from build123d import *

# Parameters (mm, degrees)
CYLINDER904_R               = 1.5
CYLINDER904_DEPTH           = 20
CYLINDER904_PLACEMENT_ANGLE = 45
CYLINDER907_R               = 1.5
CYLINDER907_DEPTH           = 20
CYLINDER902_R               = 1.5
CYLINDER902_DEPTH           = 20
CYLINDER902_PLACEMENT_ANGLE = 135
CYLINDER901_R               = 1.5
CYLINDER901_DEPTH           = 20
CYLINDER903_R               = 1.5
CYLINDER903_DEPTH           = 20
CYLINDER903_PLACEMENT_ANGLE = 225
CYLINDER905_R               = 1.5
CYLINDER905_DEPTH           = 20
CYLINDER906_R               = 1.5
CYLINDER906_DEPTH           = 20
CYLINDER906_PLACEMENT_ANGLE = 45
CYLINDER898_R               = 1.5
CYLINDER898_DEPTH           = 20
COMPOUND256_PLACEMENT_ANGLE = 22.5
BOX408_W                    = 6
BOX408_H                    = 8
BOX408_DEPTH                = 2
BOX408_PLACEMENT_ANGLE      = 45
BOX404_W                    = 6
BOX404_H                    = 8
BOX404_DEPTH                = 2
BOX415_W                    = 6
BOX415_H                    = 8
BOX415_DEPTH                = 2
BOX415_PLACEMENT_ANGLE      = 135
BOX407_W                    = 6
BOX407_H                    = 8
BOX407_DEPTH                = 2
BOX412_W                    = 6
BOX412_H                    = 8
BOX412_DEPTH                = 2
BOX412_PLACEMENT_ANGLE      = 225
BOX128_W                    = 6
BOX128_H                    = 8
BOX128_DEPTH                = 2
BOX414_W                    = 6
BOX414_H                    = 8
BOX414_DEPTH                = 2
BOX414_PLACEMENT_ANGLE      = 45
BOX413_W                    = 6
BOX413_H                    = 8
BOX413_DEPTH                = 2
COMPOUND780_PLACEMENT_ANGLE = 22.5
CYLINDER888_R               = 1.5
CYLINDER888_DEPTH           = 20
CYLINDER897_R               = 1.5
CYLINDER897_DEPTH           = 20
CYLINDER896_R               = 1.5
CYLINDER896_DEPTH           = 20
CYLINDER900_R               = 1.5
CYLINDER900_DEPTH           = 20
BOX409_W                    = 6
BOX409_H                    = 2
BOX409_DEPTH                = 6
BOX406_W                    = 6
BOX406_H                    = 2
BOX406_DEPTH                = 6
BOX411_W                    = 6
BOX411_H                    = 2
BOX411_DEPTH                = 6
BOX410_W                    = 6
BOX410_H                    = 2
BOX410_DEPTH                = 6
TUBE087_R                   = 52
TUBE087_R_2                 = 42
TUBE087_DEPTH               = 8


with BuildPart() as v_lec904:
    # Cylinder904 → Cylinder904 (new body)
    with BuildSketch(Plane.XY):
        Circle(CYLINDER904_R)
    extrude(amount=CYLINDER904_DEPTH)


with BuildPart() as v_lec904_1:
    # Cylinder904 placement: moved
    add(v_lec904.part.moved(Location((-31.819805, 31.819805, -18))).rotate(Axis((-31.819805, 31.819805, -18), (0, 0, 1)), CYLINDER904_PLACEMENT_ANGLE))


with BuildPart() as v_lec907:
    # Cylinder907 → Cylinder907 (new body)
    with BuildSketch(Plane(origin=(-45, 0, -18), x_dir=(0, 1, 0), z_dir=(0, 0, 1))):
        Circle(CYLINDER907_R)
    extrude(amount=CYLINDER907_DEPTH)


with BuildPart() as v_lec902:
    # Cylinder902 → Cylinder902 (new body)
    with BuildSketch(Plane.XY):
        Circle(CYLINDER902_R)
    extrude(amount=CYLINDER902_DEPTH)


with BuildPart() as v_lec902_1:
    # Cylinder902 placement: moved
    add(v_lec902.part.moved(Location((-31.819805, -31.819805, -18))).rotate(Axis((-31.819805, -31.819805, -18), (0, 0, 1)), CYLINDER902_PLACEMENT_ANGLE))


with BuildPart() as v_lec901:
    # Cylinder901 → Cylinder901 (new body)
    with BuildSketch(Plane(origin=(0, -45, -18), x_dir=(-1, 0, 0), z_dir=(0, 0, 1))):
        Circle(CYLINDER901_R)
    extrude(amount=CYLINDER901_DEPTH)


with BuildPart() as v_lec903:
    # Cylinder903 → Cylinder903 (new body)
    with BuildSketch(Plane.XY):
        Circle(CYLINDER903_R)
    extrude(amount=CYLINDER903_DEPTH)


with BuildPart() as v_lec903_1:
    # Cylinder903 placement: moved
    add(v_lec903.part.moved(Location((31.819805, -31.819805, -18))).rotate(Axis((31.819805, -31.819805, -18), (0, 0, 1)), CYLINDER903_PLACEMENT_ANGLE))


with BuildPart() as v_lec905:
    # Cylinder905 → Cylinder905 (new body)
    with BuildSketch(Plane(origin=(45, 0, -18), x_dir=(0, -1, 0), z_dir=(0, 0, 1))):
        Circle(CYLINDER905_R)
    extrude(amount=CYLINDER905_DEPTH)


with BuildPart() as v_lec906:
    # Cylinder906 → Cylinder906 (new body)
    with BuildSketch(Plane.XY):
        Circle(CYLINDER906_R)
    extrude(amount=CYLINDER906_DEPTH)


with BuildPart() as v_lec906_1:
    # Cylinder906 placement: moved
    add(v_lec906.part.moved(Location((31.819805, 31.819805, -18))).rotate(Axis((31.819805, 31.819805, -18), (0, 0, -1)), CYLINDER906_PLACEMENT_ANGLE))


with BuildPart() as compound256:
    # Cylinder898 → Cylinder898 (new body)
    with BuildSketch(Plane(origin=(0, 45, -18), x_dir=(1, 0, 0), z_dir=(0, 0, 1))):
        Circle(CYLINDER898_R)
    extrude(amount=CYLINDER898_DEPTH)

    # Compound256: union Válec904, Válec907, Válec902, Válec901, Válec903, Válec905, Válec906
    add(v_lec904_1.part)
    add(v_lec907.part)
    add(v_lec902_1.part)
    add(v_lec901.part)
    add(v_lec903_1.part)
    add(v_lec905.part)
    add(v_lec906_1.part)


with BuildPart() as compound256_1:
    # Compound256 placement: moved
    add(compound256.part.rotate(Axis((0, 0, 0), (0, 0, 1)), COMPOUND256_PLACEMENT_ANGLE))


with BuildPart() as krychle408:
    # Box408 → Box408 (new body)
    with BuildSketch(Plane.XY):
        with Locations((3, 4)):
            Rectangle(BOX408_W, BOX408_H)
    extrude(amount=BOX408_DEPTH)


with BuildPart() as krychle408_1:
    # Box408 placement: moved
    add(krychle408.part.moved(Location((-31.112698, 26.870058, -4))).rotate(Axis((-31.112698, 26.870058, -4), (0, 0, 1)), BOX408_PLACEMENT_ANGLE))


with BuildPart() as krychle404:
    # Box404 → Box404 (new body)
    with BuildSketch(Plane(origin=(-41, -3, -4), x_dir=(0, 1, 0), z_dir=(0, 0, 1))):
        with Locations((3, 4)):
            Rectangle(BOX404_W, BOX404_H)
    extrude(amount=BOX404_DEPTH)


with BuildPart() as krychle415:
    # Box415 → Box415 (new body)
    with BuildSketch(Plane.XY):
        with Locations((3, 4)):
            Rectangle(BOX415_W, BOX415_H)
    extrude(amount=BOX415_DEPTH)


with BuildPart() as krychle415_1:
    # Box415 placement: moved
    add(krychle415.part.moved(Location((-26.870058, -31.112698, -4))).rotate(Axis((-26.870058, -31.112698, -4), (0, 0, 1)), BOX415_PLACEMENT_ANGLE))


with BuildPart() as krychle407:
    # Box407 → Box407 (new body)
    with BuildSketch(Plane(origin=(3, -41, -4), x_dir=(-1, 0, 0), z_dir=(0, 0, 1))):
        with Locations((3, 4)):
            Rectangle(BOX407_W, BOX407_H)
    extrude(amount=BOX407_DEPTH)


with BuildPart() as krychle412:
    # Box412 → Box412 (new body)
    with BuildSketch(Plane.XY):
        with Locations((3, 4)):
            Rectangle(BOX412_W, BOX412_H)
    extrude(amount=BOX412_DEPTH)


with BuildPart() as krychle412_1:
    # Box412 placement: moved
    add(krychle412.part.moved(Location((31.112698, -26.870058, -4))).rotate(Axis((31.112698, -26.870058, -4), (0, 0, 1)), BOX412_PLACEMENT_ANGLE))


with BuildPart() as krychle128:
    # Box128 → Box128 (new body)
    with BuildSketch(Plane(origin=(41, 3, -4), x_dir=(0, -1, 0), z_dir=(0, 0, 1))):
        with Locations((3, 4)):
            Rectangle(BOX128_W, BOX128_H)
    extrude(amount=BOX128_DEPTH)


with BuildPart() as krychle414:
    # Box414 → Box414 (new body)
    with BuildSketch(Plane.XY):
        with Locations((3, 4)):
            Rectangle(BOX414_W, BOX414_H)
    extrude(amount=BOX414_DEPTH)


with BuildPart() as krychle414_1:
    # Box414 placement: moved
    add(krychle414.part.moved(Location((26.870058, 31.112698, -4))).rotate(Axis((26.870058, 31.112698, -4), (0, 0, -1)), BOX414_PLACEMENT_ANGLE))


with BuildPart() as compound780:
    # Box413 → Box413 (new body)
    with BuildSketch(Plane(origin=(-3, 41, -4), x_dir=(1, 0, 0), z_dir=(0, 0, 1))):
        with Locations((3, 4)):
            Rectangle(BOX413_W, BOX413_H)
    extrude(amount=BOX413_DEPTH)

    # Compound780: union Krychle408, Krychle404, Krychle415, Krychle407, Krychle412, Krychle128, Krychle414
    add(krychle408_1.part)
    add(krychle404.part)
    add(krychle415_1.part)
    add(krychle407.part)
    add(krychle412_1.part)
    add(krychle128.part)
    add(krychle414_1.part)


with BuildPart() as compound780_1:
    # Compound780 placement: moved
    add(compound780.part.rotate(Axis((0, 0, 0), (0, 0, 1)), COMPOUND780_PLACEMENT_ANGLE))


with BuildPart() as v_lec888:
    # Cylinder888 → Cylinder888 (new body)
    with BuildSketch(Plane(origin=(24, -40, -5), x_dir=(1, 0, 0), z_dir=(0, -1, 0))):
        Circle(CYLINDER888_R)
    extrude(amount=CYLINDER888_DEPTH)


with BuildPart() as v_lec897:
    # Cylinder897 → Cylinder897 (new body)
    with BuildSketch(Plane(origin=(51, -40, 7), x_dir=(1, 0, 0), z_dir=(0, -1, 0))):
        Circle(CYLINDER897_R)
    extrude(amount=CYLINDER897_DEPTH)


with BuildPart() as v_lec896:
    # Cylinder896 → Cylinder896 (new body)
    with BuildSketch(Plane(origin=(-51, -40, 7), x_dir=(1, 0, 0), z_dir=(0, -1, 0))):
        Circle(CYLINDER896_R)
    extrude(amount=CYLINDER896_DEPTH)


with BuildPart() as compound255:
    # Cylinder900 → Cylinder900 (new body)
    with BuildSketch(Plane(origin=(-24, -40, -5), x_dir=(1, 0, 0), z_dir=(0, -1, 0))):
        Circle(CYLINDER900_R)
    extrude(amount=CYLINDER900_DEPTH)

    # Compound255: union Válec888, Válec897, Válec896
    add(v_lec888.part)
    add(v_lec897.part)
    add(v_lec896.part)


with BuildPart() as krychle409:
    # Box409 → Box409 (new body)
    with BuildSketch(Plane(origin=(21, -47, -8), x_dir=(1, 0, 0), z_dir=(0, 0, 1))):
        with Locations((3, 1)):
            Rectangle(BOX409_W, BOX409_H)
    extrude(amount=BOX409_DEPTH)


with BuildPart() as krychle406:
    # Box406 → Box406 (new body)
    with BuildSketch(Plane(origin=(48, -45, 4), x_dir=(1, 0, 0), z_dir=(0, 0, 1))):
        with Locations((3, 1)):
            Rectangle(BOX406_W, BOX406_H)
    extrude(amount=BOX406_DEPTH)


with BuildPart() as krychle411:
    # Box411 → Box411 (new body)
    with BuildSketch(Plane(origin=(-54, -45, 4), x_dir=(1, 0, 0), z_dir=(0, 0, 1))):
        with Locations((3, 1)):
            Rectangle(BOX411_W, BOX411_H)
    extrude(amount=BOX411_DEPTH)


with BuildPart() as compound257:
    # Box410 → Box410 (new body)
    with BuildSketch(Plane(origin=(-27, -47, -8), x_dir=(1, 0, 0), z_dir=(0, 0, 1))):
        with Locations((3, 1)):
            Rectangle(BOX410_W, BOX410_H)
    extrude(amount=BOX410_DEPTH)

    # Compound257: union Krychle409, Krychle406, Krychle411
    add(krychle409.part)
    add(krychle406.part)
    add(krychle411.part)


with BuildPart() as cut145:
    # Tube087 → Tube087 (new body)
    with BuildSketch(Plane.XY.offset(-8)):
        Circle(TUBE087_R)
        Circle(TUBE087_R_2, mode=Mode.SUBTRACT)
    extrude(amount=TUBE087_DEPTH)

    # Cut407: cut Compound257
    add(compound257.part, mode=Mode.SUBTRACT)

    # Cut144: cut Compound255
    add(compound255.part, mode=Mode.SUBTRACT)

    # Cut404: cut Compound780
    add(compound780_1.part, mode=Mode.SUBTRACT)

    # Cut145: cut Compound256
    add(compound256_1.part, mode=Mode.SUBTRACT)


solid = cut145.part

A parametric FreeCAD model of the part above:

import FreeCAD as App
import Part
import Sketcher
from FreeCAD import Vector
Q = App.Units.Quantity


def add_polygon(sketch, points):
    """Adds a closed chain of lines whose ends are joined by coincident constraints."""
    first, n = sketch.GeometryCount, len(points)
    for a, b in zip(points, points[1:] + points[:1]):
        sketch.addGeometry(Part.LineSegment(App.Vector(*a, 0), App.Vector(*b, 0)), False)
    for i in range(n):
        sketch.addConstraint(Sketcher.Constraint("Coincident", first + i, 2, first + (i + 1) % n, 1))

doc = App.newDocument("Part")
body = doc.addObject("PartDesign::Body", "Body")

# Sketch on XY plane
sketch1 = body.newObject("Sketcher::SketchObject", "Sketch")
sketch1.AttachmentSupport = (doc.getObject("XY_Plane"), [""])
sketch1.MapMode = "FlatFace"
sketch1.addGeometry(Part.Circle(Vector(0, 0, 0), Vector(0, 0, 1), 1.5), False)
sketch1.addConstraint(Sketcher.Constraint("Coincident", 0, 3, -1, 1))
sketch1.addConstraint(Sketcher.Constraint("Diameter", 0, Q("3 mm")))
pad1 = body.newObject("PartDesign::Pad", "Pad")
pad1.Profile = sketch1
pad1.Length = 20
body2 = doc.addObject("PartDesign::Body", "Body001")
doc.recompute()

body.Placement = App.Placement(Vector(-31.819805, 31.819805, -18), App.Rotation(Vector(0, 0, 1), 45))
boolean = body2.newObject("PartDesign::Boolean", "Boolean")
boolean.Type = "Fuse"
boolean.addObjects([body])
body3 = doc.addObject("PartDesign::Body", "Body002")

# Sketch on XY plane
sketch2 = body3.newObject("Sketcher::SketchObject", "Sketch001")
sketch2.AttachmentSupport = (doc.getObject("XY_Plane002"), [""])
sketch2.MapMode = "FlatFace"
sketch2.AttachmentOffset = App.Placement(Vector(0, 0, -18), App.Rotation())
sketch2.addGeometry(Part.Circle(Vector(-45, 0, 0), Vector(0, 0, 1), 1.5), False)
sketch2.addConstraint(Sketcher.Constraint("PointOnObject", 0, 3, -1))
sketch2.addConstraint(Sketcher.Constraint("Diameter", 0, Q("3 mm")))
sketch2.addConstraint(Sketcher.Constraint("DistanceX", 0, 3, -1, 1, Q("45 mm")))
pad2 = body3.newObject("PartDesign::Pad", "Pad001")
pad2.Profile = sketch2
pad2.Length = 20
body4 = doc.addObject("PartDesign::Body", "Body003")

# Sketch on XY plane
sketch3 = body4.newObject("Sketcher::SketchObject", "Sketch002")
sketch3.AttachmentSupport = (doc.getObject("XY_Plane003"), [""])
sketch3.MapMode = "FlatFace"
sketch3.addGeometry(Part.Circle(Vector(0, 0, 0), Vector(0, 0, 1), 1.5), False)
sketch3.addConstraint(Sketcher.Constraint("Coincident", 0, 3, -1, 1))
sketch3.addConstraint(Sketcher.Constraint("Diameter", 0, Q("3 mm")))
pad3 = body4.newObject("PartDesign::Pad", "Pad002")
pad3.Profile = sketch3
pad3.Length = 20
body5 = doc.addObject("PartDesign::Body", "Body004")
doc.recompute()

body4.Placement = App.Placement(Vector(-31.819805, -31.819805, -18), App.Rotation(Vector(0, 0, 1), 135))
boolean2 = body5.newObject("PartDesign::Boolean", "Boolean001")
boolean2.Type = "Fuse"
boolean2.addObjects([body4])
body6 = doc.addObject("PartDesign::Body", "Body005")

# Sketch on XY plane
sketch4 = body6.newObject("Sketcher::SketchObject", "Sketch003")
sketch4.AttachmentSupport = (doc.getObject("XY_Plane005"), [""])
sketch4.MapMode = "FlatFace"
sketch4.AttachmentOffset = App.Placement(Vector(0, 0, -18), App.Rotation())
sketch4.addGeometry(Part.Circle(Vector(0, -45, 0), Vector(0, 0, 1), 1.5), False)
sketch4.addConstraint(Sketcher.Constraint("PointOnObject", 0, 3, -2))
sketch4.addConstraint(Sketcher.Constraint("Diameter", 0, Q("3 mm")))
sketch4.addConstraint(Sketcher.Constraint("DistanceY", 0, 3, -1, 1, Q("45 mm")))
pad4 = body6.newObject("PartDesign::Pad", "Pad003")
pad4.Profile = sketch4
pad4.Length = 20
body7 = doc.addObject("PartDesign::Body", "Body006")

# Sketch on XY plane
sketch5 = body7.newObject("Sketcher::SketchObject", "Sketch004")
sketch5.AttachmentSupport = (doc.getObject("XY_Plane006"), [""])
sketch5.MapMode = "FlatFace"
sketch5.addGeometry(Part.Circle(Vector(0, 0, 0), Vector(0, 0, 1), 1.5), False)
sketch5.addConstraint(Sketcher.Constraint("Coincident", 0, 3, -1, 1))
sketch5.addConstraint(Sketcher.Constraint("Diameter", 0, Q("3 mm")))
pad5 = body7.newObject("PartDesign::Pad", "Pad004")
pad5.Profile = sketch5
pad5.Length = 20
body8 = doc.addObject("PartDesign::Body", "Body007")
doc.recompute()

body7.Placement = App.Placement(Vector(31.819805, -31.819805, -18), App.Rotation(Vector(0, 0, 1), 225))
boolean3 = body8.newObject("PartDesign::Boolean", "Boolean002")
boolean3.Type = "Fuse"
boolean3.addObjects([body7])
body9 = doc.addObject("PartDesign::Body", "Body008")

# Sketch on XY plane
sketch6 = body9.newObject("Sketcher::SketchObject", "Sketch005")
sketch6.AttachmentSupport = (doc.getObject("XY_Plane008"), [""])
sketch6.MapMode = "FlatFace"
sketch6.AttachmentOffset = App.Placement(Vector(0, 0, -18), App.Rotation())
sketch6.addGeometry(Part.Circle(Vector(45, 0, 0), Vector(0, 0, 1), 1.5), False)
sketch6.addConstraint(Sketcher.Constraint("PointOnObject", 0, 3, -1))
sketch6.addConstraint(Sketcher.Constraint("Diameter", 0, Q("3 mm")))
sketch6.addConstraint(Sketcher.Constraint("DistanceX", -1, 1, 0, 3, Q("45 mm")))
pad6 = body9.newObject("PartDesign::Pad", "Pad005")
pad6.Profile = sketch6
pad6.Length = 20
body10 = doc.addObject("PartDesign::Body", "Body009")

# Sketch on XY plane
sketch7 = body10.newObject("Sketcher::SketchObject", "Sketch006")
sketch7.AttachmentSupport = (doc.getObject("XY_Plane009"), [""])
sketch7.MapMode = "FlatFace"
sketch7.addGeometry(Part.Circle(Vector(0, 0, 0), Vector(0, 0, 1), 1.5), False)
sketch7.addConstraint(Sketcher.Constraint("Coincident", 0, 3, -1, 1))
sketch7.addConstraint(Sketcher.Constraint("Diameter", 0, Q("3 mm")))
pad7 = body10.newObject("PartDesign::Pad", "Pad006")
pad7.Profile = sketch7
pad7.Length = 20
body11 = doc.addObject("PartDesign::Body", "Body010")
doc.recompute()

body10.Placement = App.Placement(Vector(31.819805, 31.819805, -18), App.Rotation(Vector(0, 0, -1), 45))
boolean4 = body11.newObject("PartDesign::Boolean", "Boolean003")
boolean4.Type = "Fuse"
boolean4.addObjects([body10])
body12 = doc.addObject("PartDesign::Body", "Body011")
body12.AllowCompound = True

# Sketch on XY plane
sketch8 = body12.newObject("Sketcher::SketchObject", "Sketch007")
sketch8.AttachmentSupport = (doc.getObject("XY_Plane011"), [""])
sketch8.MapMode = "FlatFace"
sketch8.AttachmentOffset = App.Placement(Vector(0, 0, -18), App.Rotation())
sketch8.addGeometry(Part.Circle(Vector(0, 45, 0), Vector(0, 0, 1), 1.5), False)
sketch8.addConstraint(Sketcher.Constraint("PointOnObject", 0, 3, -2))
sketch8.addConstraint(Sketcher.Constraint("Diameter", 0, Q("3 mm")))
sketch8.addConstraint(Sketcher.Constraint("DistanceY", -1, 1, 0, 3, Q("45 mm")))
pad8 = body12.newObject("PartDesign::Pad", "Pad007")
pad8.Profile = sketch8
pad8.Length = 20
doc.recompute()

boolean5 = body12.newObject("PartDesign::Boolean", "Boolean004")
boolean5.Type = "Fuse"
boolean5.addObjects([body2])
doc.recompute()

boolean6 = body12.newObject("PartDesign::Boolean", "Boolean005")
boolean6.Type = "Fuse"
boolean6.addObjects([body3])
doc.recompute()

boolean7 = body12.newObject("PartDesign::Boolean", "Boolean006")
boolean7.Type = "Fuse"
boolean7.addObjects([body5])
doc.recompute()

boolean8 = body12.newObject("PartDesign::Boolean", "Boolean007")
boolean8.Type = "Fuse"
boolean8.addObjects([body6])
doc.recompute()

boolean9 = body12.newObject("PartDesign::Boolean", "Boolean008")
boolean9.Type = "Fuse"
boolean9.addObjects([body8])
doc.recompute()

boolean10 = body12.newObject("PartDesign::Boolean", "Boolean009")
boolean10.Type = "Fuse"
boolean10.addObjects([body9])
doc.recompute()

boolean11 = body12.newObject("PartDesign::Boolean", "Boolean010")
boolean11.Type = "Fuse"
boolean11.addObjects([body11])
body13 = doc.addObject("PartDesign::Body", "Body012")
body13.AllowCompound = True
doc.recompute()

body12.Placement = App.Placement(Vector(0, 0, 0), App.Rotation(Vector(0, 0, 1), 22.5))
boolean12 = body13.newObject("PartDesign::Boolean", "Boolean011")
boolean12.Type = "Fuse"
boolean12.addObjects([body12])
body14 = doc.addObject("PartDesign::Body", "Body013")

# Sketch on XY plane
sketch9 = body14.newObject("Sketcher::SketchObject", "Sketch008")
sketch9.AttachmentSupport = (doc.getObject("XY_Plane013"), [""])
sketch9.MapMode = "FlatFace"
add_polygon(sketch9, [(0, 8), (0, 0), (6, 0), (6, 8)])  # lines 0-3
sketch9.addConstraint(Sketcher.Constraint("Vertical", 0))
sketch9.addConstraint(Sketcher.Constraint("Horizontal", 1))
sketch9.addConstraint(Sketcher.Constraint("Vertical", 2))
sketch9.addConstraint(Sketcher.Constraint("Horizontal", 3))
sketch9.addConstraint(Sketcher.Constraint("Coincident", 0, 2, -1, 1))
sketch9.addConstraint(Sketcher.Constraint("DistanceX", 1, 1, 1, 2, Q("6 mm")))
sketch9.addConstraint(Sketcher.Constraint("DistanceY", 0, 2, 0, 1, Q("8 mm")))
pad9 = body14.newObject("PartDesign::Pad", "Pad008")
pad9.Profile = sketch9
pad9.Length = 2
body15 = doc.addObject("PartDesign::Body", "Body014")
doc.recompute()

body14.Placement = App.Placement(Vector(-31.112698, 26.870058, -4), App.Rotation(Vector(0, 0, 1), 45))
boolean13 = body15.newObject("PartDesign::Boolean", "Boolean012")
boolean13.Type = "Fuse"
boolean13.addObjects([body14])
body16 = doc.addObject("PartDesign::Body", "Body015")

# Sketch on XY plane
sketch10 = body16.newObject("Sketcher::SketchObject", "Sketch009")
sketch10.AttachmentSupport = (doc.getObject("XY_Plane015"), [""])
sketch10.MapMode = "FlatFace"
sketch10.AttachmentOffset = App.Placement(Vector(0, 0, -4), App.Rotation())
add_polygon(sketch10, [(-49, -3), (-41, -3), (-41, 3), (-49, 3)])  # lines 0-3
sketch10.addConstraint(Sketcher.Constraint("Horizontal", 0))
sketch10.addConstraint(Sketcher.Constraint("Vertical", 1))
sketch10.addConstraint(Sketcher.Constraint("Horizontal", 2))
sketch10.addConstraint(Sketcher.Constraint("Vertical", 3))
sketch10.addConstraint(Sketcher.Constraint("DistanceX", 0, 1, 0, 2, Q("8 mm")))
sketch10.addConstraint(Sketcher.Constraint("DistanceY", 1, 1, 1, 2, Q("6 mm")))
sketch10.addConstraint(Sketcher.Constraint("DistanceX", 0, 2, -1, 1, Q("41 mm")))
sketch10.addConstraint(Sketcher.Constraint("DistanceY", 0, 2, -1, 1, Q("3 mm")))
pad10 = body16.newObject("PartDesign::Pad", "Pad009")
pad10.Profile = sketch10
pad10.Length = 2
body17 = doc.addObject("PartDesign::Body", "Body016")

# Sketch on XY plane
sketch11 = body17.newObject("Sketcher::SketchObject", "Sketch010")
sketch11.AttachmentSupport = (doc.getObject("XY_Plane016"), [""])
sketch11.MapMode = "FlatFace"
add_polygon(sketch11, [(0, 8), (0, 0), (6, 0), (6, 8)])  # lines 0-3
sketch11.addConstraint(Sketcher.Constraint("Vertical", 0))
sketch11.addConstraint(Sketcher.Constraint("Horizontal", 1))
sketch11.addConstraint(Sketcher.Constraint("Vertical", 2))
sketch11.addConstraint(Sketcher.Constraint("Horizontal", 3))
sketch11.addConstraint(Sketcher.Constraint("Coincident", 0, 2, -1, 1))
sketch11.addConstraint(Sketcher.Constraint("DistanceX", 1, 1, 1, 2, Q("6 mm")))
sketch11.addConstraint(Sketcher.Constraint("DistanceY", 0, 2, 0, 1, Q("8 mm")))
pad11 = body17.newObject("PartDesign::Pad", "Pad010")
pad11.Profile = sketch11
pad11.Length = 2
body18 = doc.addObject("PartDesign::Body", "Body017")
doc.recompute()

body17.Placement = App.Placement(Vector(-26.870058, -31.112698, -4), App.Rotation(Vector(0, 0, 1), 135))
boolean14 = body18.newObject("PartDesign::Boolean", "Boolean013")
boolean14.Type = "Fuse"
boolean14.addObjects([body17])
body19 = doc.addObject("PartDesign::Body", "Body018")

# Sketch on XY plane
sketch12 = body19.newObject("Sketcher::SketchObject", "Sketch011")
sketch12.AttachmentSupport = (doc.getObject("XY_Plane018"), [""])
sketch12.MapMode = "FlatFace"
sketch12.AttachmentOffset = App.Placement(Vector(0, 0, -4), App.Rotation())
add_polygon(sketch12, [(3, -49), (3, -41), (-3, -41), (-3, -49)])  # lines 0-3
sketch12.addConstraint(Sketcher.Constraint("Vertical", 0))
sketch12.addConstraint(Sketcher.Constraint("Horizontal", 1))
sketch12.addConstraint(Sketcher.Constraint("Vertical", 2))
sketch12.addConstraint(Sketcher.Constraint("Horizontal", 3))
sketch12.addConstraint(Sketcher.Constraint("DistanceX", 1, 2, 1, 1, Q("6 mm")))
sketch12.addConstraint(Sketcher.Constraint("DistanceY", 0, 1, 0, 2, Q("8 mm")))
sketch12.addConstraint(Sketcher.Constraint("DistanceX", -1, 1, 0, 2, Q("3 mm")))
sketch12.addConstraint(Sketcher.Constraint("DistanceY", 0, 2, -1, 1, Q("41 mm")))
pad12 = body19.newObject("PartDesign::Pad", "Pad011")
pad12.Profile = sketch12
pad12.Length = 2
body20 = doc.addObject("PartDesign::Body", "Body019")

# Sketch on XY plane
sketch13 = body20.newObject("Sketcher::SketchObject", "Sketch012")
sketch13.AttachmentSupport = (doc.getObject("XY_Plane019"), [""])
sketch13.MapMode = "FlatFace"
add_polygon(sketch13, [(0, 8), (0, 0), (6, 0), (6, 8)])  # lines 0-3
sketch13.addConstraint(Sketcher.Constraint("Vertical", 0))
sketch13.addConstraint(Sketcher.Constraint("Horizontal", 1))
sketch13.addConstraint(Sketcher.Constraint("Vertical", 2))
sketch13.addConstraint(Sketcher.Constraint("Horizontal", 3))
sketch13.addConstraint(Sketcher.Constraint("Coincident", 0, 2, -1, 1))
sketch13.addConstraint(Sketcher.Constraint("DistanceX", 1, 1, 1, 2, Q("6 mm")))
sketch13.addConstraint(Sketcher.Constraint("DistanceY", 0, 2, 0, 1, Q("8 mm")))
pad13 = body20.newObject("PartDesign::Pad", "Pad012")
pad13.Profile = sketch13
pad13.Length = 2
body21 = doc.addObject("PartDesign::Body", "Body020")
doc.recompute()

body20.Placement = App.Placement(Vector(31.112698, -26.870058, -4), App.Rotation(Vector(0, 0, 1), 225))
boolean15 = body21.newObject("PartDesign::Boolean", "Boolean014")
boolean15.Type = "Fuse"
boolean15.addObjects([body20])
body22 = doc.addObject("PartDesign::Body", "Body021")

# Sketch on XY plane
sketch14 = body22.newObject("Sketcher::SketchObject", "Sketch013")
sketch14.AttachmentSupport = (doc.getObject("XY_Plane021"), [""])
sketch14.MapMode = "FlatFace"
sketch14.AttachmentOffset = App.Placement(Vector(0, 0, -4), App.Rotation())
add_polygon(sketch14, [(49, 3), (41, 3), (41, -3), (49, -3)])  # lines 0-3
sketch14.addConstraint(Sketcher.Constraint("Horizontal", 0))
sketch14.addConstraint(Sketcher.Constraint("Vertical", 1))
sketch14.addConstraint(Sketcher.Constraint("Horizontal", 2))
sketch14.addConstraint(Sketcher.Constraint("Vertical", 3))
sketch14.addConstraint(Sketcher.Constraint("DistanceX", 0, 2, 0, 1, Q("8 mm")))
sketch14.addConstraint(Sketcher.Constraint("DistanceY", 1, 2, 1, 1, Q("6 mm")))
sketch14.addConstraint(Sketcher.Constraint("DistanceX", -1, 1, 0, 2, Q("41 mm")))
sketch14.addConstraint(Sketcher.Constraint("DistanceY", -1, 1, 0, 2, Q("3 mm")))
pad14 = body22.newObject("PartDesign::Pad", "Pad013")
pad14.Profile = sketch14
pad14.Length = 2
body23 = doc.addObject("PartDesign::Body", "Body022")

# Sketch on XY plane
sketch15 = body23.newObject("Sketcher::SketchObject", "Sketch014")
sketch15.AttachmentSupport = (doc.getObject("XY_Plane022"), [""])
sketch15.MapMode = "FlatFace"
add_polygon(sketch15, [(0, 8), (0, 0), (6, 0), (6, 8)])  # lines 0-3
sketch15.addConstraint(Sketcher.Constraint("Vertical", 0))
sketch15.addConstraint(Sketcher.Constraint("Horizontal", 1))
sketch15.addConstraint(Sketcher.Constraint("Vertical", 2))
sketch15.addConstraint(Sketcher.Constraint("Horizontal", 3))
sketch15.addConstraint(Sketcher.Constraint("Coincident", 0, 2, -1, 1))
sketch15.addConstraint(Sketcher.Constraint("DistanceX", 1, 1, 1, 2, Q("6 mm")))
sketch15.addConstraint(Sketcher.Constraint("DistanceY", 0, 2, 0, 1, Q("8 mm")))
pad15 = body23.newObject("PartDesign::Pad", "Pad014")
pad15.Profile = sketch15
pad15.Length = 2
body24 = doc.addObject("PartDesign::Body", "Body023")
doc.recompute()

body23.Placement = App.Placement(Vector(26.870058, 31.112698, -4), App.Rotation(Vector(0, 0, -1), 45))
boolean16 = body24.newObject("PartDesign::Boolean", "Boolean015")
boolean16.Type = "Fuse"
boolean16.addObjects([body23])
body25 = doc.addObject("PartDesign::Body", "Body024")
body25.AllowCompound = True

# Sketch on XY plane
sketch16 = body25.newObject("Sketcher::SketchObject", "Sketch015")
sketch16.AttachmentSupport = (doc.getObject("XY_Plane024"), [""])
sketch16.MapMode = "FlatFace"
sketch16.AttachmentOffset = App.Placement(Vector(0, 0, -4), App.Rotation())
add_polygon(sketch16, [(-3, 49), (-3, 41), (3, 41), (3, 49)])  # lines 0-3
sketch16.addConstraint(Sketcher.Constraint("Vertical", 0))
sketch16.addConstraint(Sketcher.Constraint("Horizontal", 1))
sketch16.addConstraint(Sketcher.Constraint("Vertical", 2))
sketch16.addConstraint(Sketcher.Constraint("Horizontal", 3))
sketch16.addConstraint(Sketcher.Constraint("DistanceX", 1, 1, 1, 2, Q("6 mm")))
sketch16.addConstraint(Sketcher.Constraint("DistanceY", 0, 2, 0, 1, Q("8 mm")))
sketch16.addConstraint(Sketcher.Constraint("DistanceX", 0, 2, -1, 1, Q("3 mm")))
sketch16.addConstraint(Sketcher.Constraint("DistanceY", -1, 1, 0, 2, Q("41 mm")))
pad16 = body25.newObject("PartDesign::Pad", "Pad015")
pad16.Profile = sketch16
pad16.Length = 2
doc.recompute()

boolean17 = body25.newObject("PartDesign::Boolean", "Boolean016")
boolean17.Type = "Fuse"
boolean17.addObjects([body15])
doc.recompute()

boolean18 = body25.newObject("PartDesign::Boolean", "Boolean017")
boolean18.Type = "Fuse"
boolean18.addObjects([body16])
doc.recompute()

boolean19 = body25.newObject("PartDesign::Boolean", "Boolean018")
boolean19.Type = "Fuse"
boolean19.addObjects([body18])
doc.recompute()

boolean20 = body25.newObject("PartDesign::Boolean", "Boolean019")
boolean20.Type = "Fuse"
boolean20.addObjects([body19])
doc.recompute()

boolean21 = body25.newObject("PartDesign::Boolean", "Boolean020")
boolean21.Type = "Fuse"
boolean21.addObjects([body21])
doc.recompute()

boolean22 = body25.newObject("PartDesign::Boolean", "Boolean021")
boolean22.Type = "Fuse"
boolean22.addObjects([body22])
doc.recompute()

boolean23 = body25.newObject("PartDesign::Boolean", "Boolean022")
boolean23.Type = "Fuse"
boolean23.addObjects([body24])
body26 = doc.addObject("PartDesign::Body", "Body025")
body26.AllowCompound = True
doc.recompute()

body25.Placement = App.Placement(Vector(0, 0, 0), App.Rotation(Vector(0, 0, 1), 22.5))
boolean24 = body26.newObject("PartDesign::Boolean", "Boolean023")
boolean24.Type = "Fuse"
boolean24.addObjects([body25])
body27 = doc.addObject("PartDesign::Body", "Body026")

# Sketch on XZ plane
sketch17 = body27.newObject("Sketcher::SketchObject", "Sketch016")
sketch17.AttachmentSupport = (doc.getObject("XZ_Plane026"), [""])
sketch17.MapMode = "FlatFace"
sketch17.AttachmentOffset = App.Placement(Vector(0, 0, 40), App.Rotation())
sketch17.addGeometry(Part.Circle(Vector(24, -5, 0), Vector(0, 0, 1), 1.5), False)
sketch17.addConstraint(Sketcher.Constraint("Diameter", 0, Q("3 mm")))
sketch17.addConstraint(Sketcher.Constraint("DistanceX", -1, 1, 0, 3, Q("24 mm")))
sketch17.addConstraint(Sketcher.Constraint("DistanceY", 0, 3, -1, 1, Q("5 mm")))
pad17 = body27.newObject("PartDesign::Pad", "Pad016")
pad17.Profile = sketch17
pad17.Length = 20
body28 = doc.addObject("PartDesign::Body", "Body027")

# Sketch on XZ plane
sketch18 = body28.newObject("Sketcher::SketchObject", "Sketch017")
sketch18.AttachmentSupport = (doc.getObject("XZ_Plane027"), [""])
sketch18.MapMode = "FlatFace"
sketch18.AttachmentOffset = App.Placement(Vector(0, 0, 40), App.Rotation())
sketch18.addGeometry(Part.Circle(Vector(51, 7, 0), Vector(0, 0, 1), 1.5), False)
sketch18.addConstraint(Sketcher.Constraint("Diameter", 0, Q("3 mm")))
sketch18.addConstraint(Sketcher.Constraint("DistanceX", -1, 1, 0, 3, Q("51 mm")))
sketch18.addConstraint(Sketcher.Constraint("DistanceY", -1, 1, 0, 3, Q("7 mm")))
pad18 = body28.newObject("PartDesign::Pad", "Pad017")
pad18.Profile = sketch18
pad18.Length = 20
body29 = doc.addObject("PartDesign::Body", "Body028")

# Sketch on XZ plane
sketch19 = body29.newObject("Sketcher::SketchObject", "Sketch018")
sketch19.AttachmentSupport = (doc.getObject("XZ_Plane028"), [""])
sketch19.MapMode = "FlatFace"
sketch19.AttachmentOffset = App.Placement(Vector(0, 0, 40), App.Rotation())
sketch19.addGeometry(Part.Circle(Vector(-51, 7, 0), Vector(0, 0, 1), 1.5), False)
sketch19.addConstraint(Sketcher.Constraint("Diameter", 0, Q("3 mm")))
sketch19.addConstraint(Sketcher.Constraint("DistanceX", 0, 3, -1, 1, Q("51 mm")))
sketch19.addConstraint(Sketcher.Constraint("DistanceY", -1, 1, 0, 3, Q("7 mm")))
pad19 = body29.newObject("PartDesign::Pad", "Pad018")
pad19.Profile = sketch19
pad19.Length = 20
body30 = doc.addObject("PartDesign::Body", "Body029")
body30.AllowCompound = True

# Sketch on XZ plane
sketch20 = body30.newObject("Sketcher::SketchObject", "Sketch019")
sketch20.AttachmentSupport = (doc.getObject("XZ_Plane029"), [""])
sketch20.MapMode = "FlatFace"
sketch20.AttachmentOffset = App.Placement(Vector(0, 0, 40), App.Rotation())
sketch20.addGeometry(Part.Circle(Vector(-24, -5, 0), Vector(0, 0, 1), 1.5), False)
sketch20.addConstraint(Sketcher.Constraint("Diameter", 0, Q("3 mm")))
sketch20.addConstraint(Sketcher.Constraint("DistanceX", 0, 3, -1, 1, Q("24 mm")))
sketch20.addConstraint(Sketcher.Constraint("DistanceY", 0, 3, -1, 1, Q("5 mm")))
pad20 = body30.newObject("PartDesign::Pad", "Pad019")
pad20.Profile = sketch20
pad20.Length = 20
doc.recompute()

boolean25 = body30.newObject("PartDesign::Boolean", "Boolean024")
boolean25.Type = "Fuse"
boolean25.addObjects([body27])
doc.recompute()

boolean26 = body30.newObject("PartDesign::Boolean", "Boolean025")
boolean26.Type = "Fuse"
boolean26.addObjects([body28])
doc.recompute()

boolean27 = body30.newObject("PartDesign::Boolean", "Boolean026")
boolean27.Type = "Fuse"
boolean27.addObjects([body29])
body31 = doc.addObject("PartDesign::Body", "Body030")

# Sketch on XY plane
sketch21 = body31.newObject("Sketcher::SketchObject", "Sketch020")
sketch21.AttachmentSupport = (doc.getObject("XY_Plane030"), [""])
sketch21.MapMode = "FlatFace"
sketch21.AttachmentOffset = App.Placement(Vector(0, 0, -8), App.Rotation())
add_polygon(sketch21, [(21, -45), (21, -47), (27, -47), (27, -45)])  # lines 0-3
sketch21.addConstraint(Sketcher.Constraint("Vertical", 0))
sketch21.addConstraint(Sketcher.Constraint("Horizontal", 1))
sketch21.addConstraint(Sketcher.Constraint("Vertical", 2))
sketch21.addConstraint(Sketcher.Constraint("Horizontal", 3))
sketch21.addConstraint(Sketcher.Constraint("DistanceX", 1, 1, 1, 2, Q("6 mm")))
sketch21.addConstraint(Sketcher.Constraint("DistanceY", 0, 2, 0, 1, Q("2 mm")))
sketch21.addConstraint(Sketcher.Constraint("DistanceX", -1, 1, 0, 2, Q("21 mm")))
sketch21.addConstraint(Sketcher.Constraint("DistanceY", 0, 2, -1, 1, Q("47 mm")))
pad21 = body31.newObject("PartDesign::Pad", "Pad020")
pad21.Profile = sketch21
pad21.Length = 6
body32 = doc.addObject("PartDesign::Body", "Body031")

# Sketch on XY plane
sketch22 = body32.newObject("Sketcher::SketchObject", "Sketch021")
sketch22.AttachmentSupport = (doc.getObject("XY_Plane031"), [""])
sketch22.MapMode = "FlatFace"
sketch22.AttachmentOffset = App.Placement(Vector(0, 0, 4), App.Rotation())
add_polygon(sketch22, [(48, -43), (48, -45), (54, -45), (54, -43)])  # lines 0-3
sketch22.addConstraint(Sketcher.Constraint("Vertical", 0))
sketch22.addConstraint(Sketcher.Constraint("Horizontal", 1))
sketch22.addConstraint(Sketcher.Constraint("Vertical", 2))
sketch22.addConstraint(Sketcher.Constraint("Horizontal", 3))
sketch22.addConstraint(Sketcher.Constraint("DistanceX", 1, 1, 1, 2, Q("6 mm")))
sketch22.addConstraint(Sketcher.Constraint("DistanceY", 0, 2, 0, 1, Q("2 mm")))
sketch22.addConstraint(Sketcher.Constraint("DistanceX", -1, 1, 0, 2, Q("48 mm")))
sketch22.addConstraint(Sketcher.Constraint("DistanceY", 0, 2, -1, 1, Q("45 mm")))
pad22 = body32.newObject("PartDesign::Pad", "Pad021")
pad22.Profile = sketch22
pad22.Length = 6
body33 = doc.addObject("PartDesign::Body", "Body032")

# Sketch on XY plane
sketch23 = body33.newObject("Sketcher::SketchObject", "Sketch022")
sketch23.AttachmentSupport = (doc.getObject("XY_Plane032"), [""])
sketch23.MapMode = "FlatFace"
sketch23.AttachmentOffset = App.Placement(Vector(0, 0, 4), App.Rotation())
add_polygon(sketch23, [(-54, -43), (-54, -45), (-48, -45), (-48, -43)])  # lines 0-3
sketch23.addConstraint(Sketcher.Constraint("Vertical", 0))
sketch23.addConstraint(Sketcher.Constraint("Horizontal", 1))
sketch23.addConstraint(Sketcher.Constraint("Vertical", 2))
sketch23.addConstraint(Sketcher.Constraint("Horizontal", 3))
sketch23.addConstraint(Sketcher.Constraint("DistanceX", 1, 1, 1, 2, Q("6 mm")))
sketch23.addConstraint(Sketcher.Constraint("DistanceY", 0, 2, 0, 1, Q("2 mm")))
sketch23.addConstraint(Sketcher.Constraint("DistanceX", 0, 2, -1, 1, Q("54 mm")))
sketch23.addConstraint(Sketcher.Constraint("DistanceY", 0, 2, -1, 1, Q("45 mm")))
pad23 = body33.newObject("PartDesign::Pad", "Pad022")
pad23.Profile = sketch23
pad23.Length = 6
body34 = doc.addObject("PartDesign::Body", "Body033")
body34.AllowCompound = True

# Sketch on XY plane
sketch24 = body34.newObject("Sketcher::SketchObject", "Sketch023")
sketch24.AttachmentSupport = (doc.getObject("XY_Plane033"), [""])
sketch24.MapMode = "FlatFace"
sketch24.AttachmentOffset = App.Placement(Vector(0, 0, -8), App.Rotation())
add_polygon(sketch24, [(-27, -45), (-27, -47), (-21, -47), (-21, -45)])  # lines 0-3
sketch24.addConstraint(Sketcher.Constraint("Vertical", 0))
sketch24.addConstraint(Sketcher.Constraint("Horizontal", 1))
sketch24.addConstraint(Sketcher.Constraint("Vertical", 2))
sketch24.addConstraint(Sketcher.Constraint("Horizontal", 3))
sketch24.addConstraint(Sketcher.Constraint("DistanceX", 1, 1, 1, 2, Q("6 mm")))
sketch24.addConstraint(Sketcher.Constraint("DistanceY", 0, 2, 0, 1, Q("2 mm")))
sketch24.addConstraint(Sketcher.Constraint("DistanceX", 0, 2, -1, 1, Q("27 mm")))
sketch24.addConstraint(Sketcher.Constraint("DistanceY", 0, 2, -1, 1, Q("47 mm")))
pad24 = body34.newObject("PartDesign::Pad", "Pad023")
pad24.Profile = sketch24
pad24.Length = 6
doc.recompute()

boolean28 = body34.newObject("PartDesign::Boolean", "Boolean027")
boolean28.Type = "Fuse"
boolean28.addObjects([body31])
doc.recompute()

boolean29 = body34.newObject("PartDesign::Boolean", "Boolean028")
boolean29.Type = "Fuse"
boolean29.addObjects([body32])
doc.recompute()

boolean30 = body34.newObject("PartDesign::Boolean", "Boolean029")
boolean30.Type = "Fuse"
boolean30.addObjects([body33])
body35 = doc.addObject("PartDesign::Body", "Body034")

# Sketch on XY plane
sketch25 = body35.newObject("Sketcher::SketchObject", "Sketch024")
sketch25.AttachmentSupport = (doc.getObject("XY_Plane034"), [""])
sketch25.MapMode = "FlatFace"
sketch25.AttachmentOffset = App.Placement(Vector(0, 0, -8), App.Rotation())
sketch25.addGeometry(Part.Circle(Vector(0, 0, 0), Vector(0, 0, 1), 52), False)
sketch25.addGeometry(Part.Circle(Vector(0, 0, 0), Vector(0, 0, 1), 42), False)
sketch25.addConstraint(Sketcher.Constraint("Coincident", 0, 3, -1, 1))
sketch25.addConstraint(Sketcher.Constraint("Coincident", 1, 3, -1, 1))
sketch25.addConstraint(Sketcher.Constraint("Diameter", 0, Q("104 mm")))
sketch25.addConstraint(Sketcher.Constraint("Diameter", 1, Q("84 mm")))
pad25 = body35.newObject("PartDesign::Pad", "Pad024")
pad25.Profile = sketch25
pad25.Length = 8
doc.recompute()

boolean31 = body35.newObject("PartDesign::Boolean", "Boolean030")
boolean31.Type = "Cut"
boolean31.addObjects([body34])
doc.recompute()

boolean32 = body35.newObject("PartDesign::Boolean", "Boolean031")
boolean32.Type = "Cut"
boolean32.addObjects([body30])
doc.recompute()

boolean33 = body35.newObject("PartDesign::Boolean", "Boolean032")
boolean33.Type = "Cut"
boolean33.addObjects([body26])
doc.recompute()

boolean34 = body35.newObject("PartDesign::Boolean", "Boolean033")
boolean34.Type = "Cut"
boolean34.addObjects([body13])

doc.recompute()
